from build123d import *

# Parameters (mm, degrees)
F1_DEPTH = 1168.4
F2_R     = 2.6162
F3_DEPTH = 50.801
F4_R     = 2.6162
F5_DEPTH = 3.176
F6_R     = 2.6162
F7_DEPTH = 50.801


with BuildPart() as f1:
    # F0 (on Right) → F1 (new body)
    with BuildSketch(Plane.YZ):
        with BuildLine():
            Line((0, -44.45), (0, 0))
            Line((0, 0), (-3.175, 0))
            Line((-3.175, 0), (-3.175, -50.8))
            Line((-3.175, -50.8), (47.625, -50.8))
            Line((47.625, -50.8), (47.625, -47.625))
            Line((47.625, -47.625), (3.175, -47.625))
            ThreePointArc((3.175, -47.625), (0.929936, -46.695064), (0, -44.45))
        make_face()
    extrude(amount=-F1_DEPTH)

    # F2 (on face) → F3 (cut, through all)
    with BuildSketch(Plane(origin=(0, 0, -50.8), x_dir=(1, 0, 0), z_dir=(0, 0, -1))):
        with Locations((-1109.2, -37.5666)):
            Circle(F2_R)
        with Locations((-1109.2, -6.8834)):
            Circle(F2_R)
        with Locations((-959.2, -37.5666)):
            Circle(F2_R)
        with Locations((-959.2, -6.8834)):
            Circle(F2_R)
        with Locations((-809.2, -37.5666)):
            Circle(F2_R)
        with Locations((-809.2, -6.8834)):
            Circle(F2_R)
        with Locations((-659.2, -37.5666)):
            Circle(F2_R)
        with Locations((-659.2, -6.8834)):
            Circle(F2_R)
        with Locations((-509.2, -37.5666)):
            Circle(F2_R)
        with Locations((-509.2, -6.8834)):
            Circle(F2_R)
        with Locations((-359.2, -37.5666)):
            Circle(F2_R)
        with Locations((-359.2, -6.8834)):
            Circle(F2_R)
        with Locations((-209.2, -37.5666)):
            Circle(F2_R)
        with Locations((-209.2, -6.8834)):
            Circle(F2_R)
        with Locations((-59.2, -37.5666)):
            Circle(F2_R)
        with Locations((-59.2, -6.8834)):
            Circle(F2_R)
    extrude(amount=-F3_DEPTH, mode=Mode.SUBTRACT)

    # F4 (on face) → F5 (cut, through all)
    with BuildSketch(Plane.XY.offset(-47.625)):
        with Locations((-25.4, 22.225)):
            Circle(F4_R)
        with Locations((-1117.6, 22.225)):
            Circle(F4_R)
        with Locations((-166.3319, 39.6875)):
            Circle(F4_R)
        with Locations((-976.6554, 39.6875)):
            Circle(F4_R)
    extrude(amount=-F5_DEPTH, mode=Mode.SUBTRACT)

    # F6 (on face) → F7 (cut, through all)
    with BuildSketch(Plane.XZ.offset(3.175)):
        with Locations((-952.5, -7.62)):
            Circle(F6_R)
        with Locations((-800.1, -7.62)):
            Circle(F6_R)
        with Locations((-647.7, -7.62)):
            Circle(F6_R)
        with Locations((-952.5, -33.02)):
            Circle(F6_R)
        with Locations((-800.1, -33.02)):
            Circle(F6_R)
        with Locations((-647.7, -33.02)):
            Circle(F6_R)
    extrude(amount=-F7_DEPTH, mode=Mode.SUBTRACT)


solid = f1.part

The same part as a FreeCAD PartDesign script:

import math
import FreeCAD as App
import Part
import Sketcher

V = App.Vector
Q = App.Units.Quantity

doc = App.newDocument("Part")
params = doc.addObject("Spreadsheet::Sheet", "Params")
for row, (alias, value) in enumerate([
    ("sketch1_width", "2 in"),
    ("sketch1_radius", "0.125 in"),
    ("sketch1_width2", "1.75 in"),
    ("pad1_length", "46 in"),
    ("sketch2_diameter", "0.206 in"),
    ("sketch3_diameter", "0.206 in"),
    ("sketch4_diameter", "0.206 in"),
], start=1):
    params.set(f"A{row}", alias)
    params.set(f"B{row}", "=" + value)
    params.setAlias(f"B{row}", alias)

body = doc.addObject("PartDesign::Body", "Body")

sketch1 = doc.addObject("Sketcher::SketchObject", "Sketch")
body.addObject(sketch1)
sketch1.AttachmentSupport = (doc.YZ_Plane, [""])
sketch1.MapMode = "FlatFace"
sketch1.addGeometry(Part.LineSegment(V(0, -44.5, 0), V(0, 0, 0)), False)
sketch1.addGeometry(Part.LineSegment(V(0, 0, 0), V(-3.2, 0, 0)), False)
sketch1.addGeometry(Part.LineSegment(V(-3.2, 0, 0), V(-3.2, -50.8, 0)), False)
sketch1.addGeometry(Part.LineSegment(V(-3.2, -50.8, 0), V(47.6, -50.8, 0)), False)
sketch1.addGeometry(Part.LineSegment(V(47.6, -50.8, 0), V(47.6, -47.6, 0)), False)
sketch1.addGeometry(Part.LineSegment(V(47.6, -47.6, 0), V(3.2, -47.6, 0)), False)
sketch1.addGeometry(Part.ArcOfCircle(Part.Circle(V(3.2, -44.4, 0), V(0, 0, 1), 3.2), math.radians(-180), math.radians(-90)), False)
sketch1.addConstraint(Sketcher.Constraint("Coincident", 0, 2, 1, 1))
sketch1.addConstraint(Sketcher.Constraint("Coincident", 1, 2, 2, 1))
sketch1.addConstraint(Sketcher.Constraint("Coincident", 2, 2, 3, 1))
sketch1.addConstraint(Sketcher.Constraint("Coincident", 3, 2, 4, 1))
sketch1.addConstraint(Sketcher.Constraint("Coincident", 4, 2, 5, 1))
sketch1.addConstraint(Sketcher.Constraint("Tangent", 5, 2, 6, 2))
sketch1.addConstraint(Sketcher.Constraint("Tangent", 6, 1, 0, 1))
sketch1.addConstraint(Sketcher.Constraint("Vertical", 0))
sketch1.addConstraint(Sketcher.Constraint("Horizontal", 1))
sketch1.addConstraint(Sketcher.Constraint("Vertical", 2))
sketch1.addConstraint(Sketcher.Constraint("Horizontal", 3))
sketch1.addConstraint(Sketcher.Constraint("Vertical", 4))
sketch1.addConstraint(Sketcher.Constraint("Horizontal", 5))
sketch1.addConstraint(Sketcher.Constraint("Coincident", 0, 2, -1, 1))
sketch1.addConstraint(Sketcher.Constraint("Equal", 5, 0))
sketch1.addConstraint(Sketcher.Constraint("Equal", 3, 2))
sketch1.addConstraint(Sketcher.Constraint("DistanceX", 3, 1, 3, 2, Q("2 in")))
sketch1.addConstraint(Sketcher.Constraint("Radius", 6, Q("0.125 in")))
sketch1.addConstraint(Sketcher.Constraint("DistanceX", 5, 2, 5, 1, Q("1.75 in")))
sketch1.setExpression("Constraints[16]", "Params.sketch1_width")
sketch1.setExpression("Constraints[17]", "Params.sketch1_radius")
sketch1.setExpression("Constraints[18]", "Params.sketch1_width2")
pad1 = doc.addObject("PartDesign::Pad", "Pad")
body.addObject(pad1)
pad1.Profile = sketch1
pad1.setExpression("Length", "Params.pad1_length")
pad1.Reversed = True

sketch2 = doc.addObject("Sketcher::SketchObject", "Sketch001")
body.addObject(sketch2)
sketch2.AttachmentSupport = (doc.XY_Plane, [""])
sketch2.MapMode = "FlatFace"
sketch2.AttachmentOffset = App.Placement(V(0, 0, -2 * 25.4), App.Rotation())
sketch2.addGeometry(Part.Circle(V(-1109.2, 37.6, 0), V(0, 0, 1), 2.6), False)
sketch2.addGeometry(Part.Circle(V(-1109.2, 6.9, 0), V(0, 0, 1), 2.6), False)
sketch2.addGeometry(Part.Circle(V(-959.2, 37.6, 0), V(0, 0, 1), 2.6), False)
sketch2.addGeometry(Part.Circle(V(-959.2, 6.9, 0), V(0, 0, 1), 2.6), False)
sketch2.addGeometry(Part.Circle(V(-809.2, 37.6, 0), V(0, 0, 1), 2.6), False)
sketch2.addGeometry(Part.Circle(V(-809.2, 6.9, 0), V(0, 0, 1), 2.6), False)
sketch2.addGeometry(Part.Circle(V(-659.2, 37.6, 0), V(0, 0, 1), 2.6), False)
sketch2.addGeometry(Part.Circle(V(-659.2, 6.9, 0), V(0, 0, 1), 2.6), False)
sketch2.addGeometry(Part.Circle(V(-509.2, 37.6, 0), V(0, 0, 1), 2.6), False)
sketch2.addGeometry(Part.Circle(V(-509.2, 6.9, 0), V(0, 0, 1), 2.6), False)
sketch2.addGeometry(Part.Circle(V(-359.2, 37.6, 0), V(0, 0, 1), 2.6), False)
sketch2.addGeometry(Part.Circle(V(-359.2, 6.9, 0), V(0, 0, 1), 2.6), False)
sketch2.addGeometry(Part.Circle(V(-209.2, 37.6, 0), V(0, 0, 1), 2.6), False)
sketch2.addGeometry(Part.Circle(V(-209.2, 6.9, 0), V(0, 0, 1), 2.6), False)
sketch2.addGeometry(Part.Circle(V(-59.2, 37.6, 0), V(0, 0, 1), 2.6), False)
sketch2.addGeometry(Part.Circle(V(-59.2, 6.9, 0), V(0, 0, 1), 2.6), False)
sketch2.addConstraint(Sketcher.Constraint("Equal", 0, 1))
sketch2.addConstraint(Sketcher.Constraint("Equal", 1, 2))
sketch2.addConstraint(Sketcher.Constraint("Equal", 2, 3))
sketch2.addConstraint(Sketcher.Constraint("Equal", 3, 4))
sketch2.addConstraint(Sketcher.Constraint("Equal", 4, 5))
sketch2.addConstraint(Sketcher.Constraint("Equal", 5, 6))
sketch2.addConstraint(Sketcher.Constraint("Equal", 6, 7))
sketch2.addConstraint(Sketcher.Constraint("Equal", 7, 8))
sketch2.addConstraint(Sketcher.Constraint("Equal", 8, 9))
sketch2.addConstraint(Sketcher.Constraint("Equal", 9, 10))
sketch2.addConstraint(Sketcher.Constraint("Equal", 10, 11))
sketch2.addConstraint(Sketcher.Constraint("Equal", 11, 12))
sketch2.addConstraint(Sketcher.Constraint("Equal", 12, 13))
sketch2.addConstraint(Sketcher.Constraint("Equal", 13, 14))
sketch2.addConstraint(Sketcher.Constraint("Equal", 14, 15))
sketch2.addConstraint(Sketcher.Constraint("Horizontal", 0, 3, 2, 3))
sketch2.addConstraint(Sketcher.Constraint("Horizontal", 1, 3, 3, 3))
sketch2.addConstraint(Sketcher.Constraint("Horizontal", 2, 3, 4, 3))
sketch2.addConstraint(Sketcher.Constraint("Horizontal", 3, 3, 5, 3))
sketch2.addConstraint(Sketcher.Constraint("Horizontal", 4, 3, 6, 3))
sketch2.addConstraint(Sketcher.Constraint("Horizontal", 5, 3, 7, 3))
sketch2.addConstraint(Sketcher.Constraint("Horizontal", 6, 3, 8, 3))
sketch2.addConstraint(Sketcher.Constraint("Horizontal", 7, 3, 9, 3))
sketch2.addConstraint(Sketcher.Constraint("Horizontal", 8, 3, 10, 3))
sketch2.addConstraint(Sketcher.Constraint("Horizontal", 9, 3, 11, 3))
sketch2.addConstraint(Sketcher.Constraint("Horizontal", 10, 3, 12, 3))
sketch2.addConstraint(Sketcher.Constraint("Horizontal", 11, 3, 13, 3))
sketch2.addConstraint(Sketcher.Constraint("Horizontal", 12, 3, 14, 3))
sketch2.addConstraint(Sketcher.Constraint("Horizontal", 13, 3, 15, 3))
sketch2.addConstraint(Sketcher.Constraint("Vertical", 0, 3, 1, 3))
sketch2.addConstraint(Sketcher.Constraint("Vertical", 2, 3, 3, 3))
sketch2.addConstraint(Sketcher.Constraint("Vertical", 4, 3, 5, 3))
sketch2.addConstraint(Sketcher.Constraint("Vertical", 6, 3, 7, 3))
sketch2.addConstraint(Sketcher.Constraint("Vertical", 8, 3, 9, 3))
sketch2.addConstraint(Sketcher.Constraint("Vertical", 10, 3, 11, 3))
sketch2.addConstraint(Sketcher.Constraint("Vertical", 12, 3, 13, 3))
sketch2.addConstraint(Sketcher.Constraint("Vertical", 14, 3, 15, 3))
sketch2.addConstraint(Sketcher.Constraint("Diameter", 0, Q("0.206 in")))
sketch2.addConstraint(Sketcher.Constraint("DistanceY", -1, 1, 0, 3, Q("1.479 in")))
sketch2.addConstraint(Sketcher.Constraint("DistanceY", -1, 1, 1, 3, Q("0.271 in")))
sketch2.addConstraint(Sketcher.Constraint("DistanceX", 0, 3, -1, 1, Q("1109.2 mm")))
sketch2.addConstraint(Sketcher.Constraint("DistanceX", 2, 3, -1, 1, Q("959.2 mm")))
sketch2.addConstraint(Sketcher.Constraint("DistanceX", 4, 3, -1, 1, Q("809.2 mm")))
sketch2.addConstraint(Sketcher.Constraint("DistanceX", 6, 3, -1, 1, Q("659.2 mm")))
sketch2.addConstraint(Sketcher.Constraint("DistanceX", 8, 3, -1, 1, Q("509.2 mm")))
sketch2.addConstraint(Sketcher.Constraint("DistanceX", 10, 3, -1, 1, Q("359.2 mm")))
sketch2.addConstraint(Sketcher.Constraint("DistanceX", 12, 3, -1, 1, Q("209.2 mm")))
sketch2.addConstraint(Sketcher.Constraint("DistanceX", 14, 3, -1, 1, Q("59.2 mm")))
sketch2.setExpression("Constraints[37]", "Params.sketch2_diameter")
pocket1 = doc.addObject("PartDesign::Pocket", "Pocket")
body.addObject(pocket1)
pocket1.Profile = sketch2
pocket1.Type = "ThroughAll"
pocket1.Reversed = True

sketch3 = doc.addObject("Sketcher::SketchObject", "Sketch002")
body.addObject(sketch3)
sketch3.AttachmentSupport = (doc.XY_Plane, [""])
sketch3.MapMode = "FlatFace"
sketch3.AttachmentOffset = App.Placement(V(0, 0, -1.875 * 25.4), App.Rotation())
sketch3.addGeometry(Part.Circle(V(-25.4, 22.2, 0), V(0, 0, 1), 2.6), False)
sketch3.addGeometry(Part.Circle(V(-1117.6, 22.2, 0), V(0, 0, 1), 2.6), False)
sketch3.addGeometry(Part.Circle(V(-166.3, 39.7, 0), V(0, 0, 1), 2.6), False)
sketch3.addGeometry(Part.Circle(V(-976.7, 39.7, 0), V(0, 0, 1), 2.6), False)
sketch3.addConstraint(Sketcher.Constraint("Equal", 0, 1))
sketch3.addConstraint(Sketcher.Constraint("Equal", 1, 2))
sketch3.addConstraint(Sketcher.Constraint("Equal", 2, 3))
sketch3.addConstraint(Sketcher.Constraint("Horizontal", 0, 3, 1, 3))
sketch3.addConstraint(Sketcher.Constraint("Horizontal", 2, 3, 3, 3))
sketch3.addConstraint(Sketcher.Constraint("Diameter", 0, Q("0.206 in")))
sketch3.addConstraint(Sketcher.Constraint("DistanceX", 0, 3, -1, 1, Q("1 in")))
sketch3.addConstraint(Sketcher.Constraint("DistanceX", 1, 3, -1, 1, Q("44 in")))
sketch3.addConstraint(Sketcher.Constraint("DistanceY", -1, 1, 0, 3, Q("0.875 in")))
sketch3.addConstraint(Sketcher.Constraint("DistanceY", -1, 1, 2, 3, Q("1.5625 in")))
sketch3.addConstraint(Sketcher.Constraint("DistanceX", 3, 3, -1, 1, Q("38.451 in")))
sketch3.addConstraint(Sketcher.Constraint("DistanceX", 2, 3, -1, 1, Q("6.5485 in")))
sketch3.setExpression("Constraints[5]", "Params.sketch3_diameter")
pocket2 = doc.addObject("PartDesign::Pocket", "Pocket001")
body.addObject(pocket2)
pocket2.Profile = sketch3
pocket2.Type = "ThroughAll"

sketch4 = doc.addObject("Sketcher::SketchObject", "Sketch003")
body.addObject(sketch4)
sketch4.AttachmentSupport = (doc.XZ_Plane, [""])
sketch4.MapMode = "FlatFace"
sketch4.AttachmentOffset = App.Placement(V(0, 0, 0.125 * 25.4), App.Rotation())
sketch4.addGeometry(Part.Circle(V(-952.5, -7.6, 0), V(0, 0, 1), 2.6), False)
sketch4.addGeometry(Part.Circle(V(-800.1, -7.6, 0), V(0, 0, 1), 2.6), False)
sketch4.addGeometry(Part.Circle(V(-647.7, -7.6, 0), V(0, 0, 1), 2.6), False)
sketch4.addGeometry(Part.Circle(V(-952.5, -33, 0), V(0, 0, 1), 2.6), False)
sketch4.addGeometry(Part.Circle(V(-800.1, -33, 0), V(0, 0, 1), 2.6), False)
sketch4.addGeometry(Part.Circle(V(-647.7, -33, 0), V(0, 0, 1), 2.6), False)
sketch4.addConstraint(Sketcher.Constraint("Equal", 0, 1))
sketch4.addConstraint(Sketcher.Constraint("Equal", 1, 2))
sketch4.addConstraint(Sketcher.Constraint("Equal", 2, 3))
sketch4.addConstraint(Sketcher.Constraint("Equal", 3, 4))
sketch4.addConstraint(Sketcher.Constraint("Equal", 4, 5))
sketch4.addConstraint(Sketcher.Constraint("Horizontal", 0, 3, 1, 3))
sketch4.addConstraint(Sketcher.Constraint("Horizontal", 1, 3, 2, 3))
sketch4.addConstraint(Sketcher.Constraint("Horizontal", 3, 3, 4, 3))
sketch4.addConstraint(Sketcher.Constraint("Horizontal", 4, 3, 5, 3))
sketch4.addConstraint(Sketcher.Constraint("Vertical", 0, 3, 3, 3))
sketch4.addConstraint(Sketcher.Constraint("Vertical", 1, 3, 4, 3))
sketch4.addConstraint(Sketcher.Constraint("Vertical", 2, 3, 5, 3))
sketch4.addConstraint(Sketcher.Constraint("Diameter", 0, Q("0.206 in")))
sketch4.addConstraint(Sketcher.Constraint("DistanceX", 0, 3, 1, 3, Q("6 in")))
sketch4.addConstraint(Sketcher.Constraint("DistanceX", 1, 3, 2, 3, Q("6 in")))
sketch4.addConstraint(Sketcher.Constraint("DistanceY", 3, 3, 0, 3, Q("1 in")))
sketch4.addConstraint(Sketcher.Constraint("DistanceX", 0, 3, -1, 1, Q("37.5 in")))
sketch4.addConstraint(Sketcher.Constraint("DistanceY", 0, 3, -1, 1, Q("0.3 in")))
sketch4.setExpression("Constraints[12]", "Params.sketch4_diameter")
pocket3 = doc.addObject("PartDesign::Pocket", "Pocket002")
body.addObject(pocket3)
pocket3.Profile = sketch4
pocket3.Type = "ThroughAll"

doc.recompute()
